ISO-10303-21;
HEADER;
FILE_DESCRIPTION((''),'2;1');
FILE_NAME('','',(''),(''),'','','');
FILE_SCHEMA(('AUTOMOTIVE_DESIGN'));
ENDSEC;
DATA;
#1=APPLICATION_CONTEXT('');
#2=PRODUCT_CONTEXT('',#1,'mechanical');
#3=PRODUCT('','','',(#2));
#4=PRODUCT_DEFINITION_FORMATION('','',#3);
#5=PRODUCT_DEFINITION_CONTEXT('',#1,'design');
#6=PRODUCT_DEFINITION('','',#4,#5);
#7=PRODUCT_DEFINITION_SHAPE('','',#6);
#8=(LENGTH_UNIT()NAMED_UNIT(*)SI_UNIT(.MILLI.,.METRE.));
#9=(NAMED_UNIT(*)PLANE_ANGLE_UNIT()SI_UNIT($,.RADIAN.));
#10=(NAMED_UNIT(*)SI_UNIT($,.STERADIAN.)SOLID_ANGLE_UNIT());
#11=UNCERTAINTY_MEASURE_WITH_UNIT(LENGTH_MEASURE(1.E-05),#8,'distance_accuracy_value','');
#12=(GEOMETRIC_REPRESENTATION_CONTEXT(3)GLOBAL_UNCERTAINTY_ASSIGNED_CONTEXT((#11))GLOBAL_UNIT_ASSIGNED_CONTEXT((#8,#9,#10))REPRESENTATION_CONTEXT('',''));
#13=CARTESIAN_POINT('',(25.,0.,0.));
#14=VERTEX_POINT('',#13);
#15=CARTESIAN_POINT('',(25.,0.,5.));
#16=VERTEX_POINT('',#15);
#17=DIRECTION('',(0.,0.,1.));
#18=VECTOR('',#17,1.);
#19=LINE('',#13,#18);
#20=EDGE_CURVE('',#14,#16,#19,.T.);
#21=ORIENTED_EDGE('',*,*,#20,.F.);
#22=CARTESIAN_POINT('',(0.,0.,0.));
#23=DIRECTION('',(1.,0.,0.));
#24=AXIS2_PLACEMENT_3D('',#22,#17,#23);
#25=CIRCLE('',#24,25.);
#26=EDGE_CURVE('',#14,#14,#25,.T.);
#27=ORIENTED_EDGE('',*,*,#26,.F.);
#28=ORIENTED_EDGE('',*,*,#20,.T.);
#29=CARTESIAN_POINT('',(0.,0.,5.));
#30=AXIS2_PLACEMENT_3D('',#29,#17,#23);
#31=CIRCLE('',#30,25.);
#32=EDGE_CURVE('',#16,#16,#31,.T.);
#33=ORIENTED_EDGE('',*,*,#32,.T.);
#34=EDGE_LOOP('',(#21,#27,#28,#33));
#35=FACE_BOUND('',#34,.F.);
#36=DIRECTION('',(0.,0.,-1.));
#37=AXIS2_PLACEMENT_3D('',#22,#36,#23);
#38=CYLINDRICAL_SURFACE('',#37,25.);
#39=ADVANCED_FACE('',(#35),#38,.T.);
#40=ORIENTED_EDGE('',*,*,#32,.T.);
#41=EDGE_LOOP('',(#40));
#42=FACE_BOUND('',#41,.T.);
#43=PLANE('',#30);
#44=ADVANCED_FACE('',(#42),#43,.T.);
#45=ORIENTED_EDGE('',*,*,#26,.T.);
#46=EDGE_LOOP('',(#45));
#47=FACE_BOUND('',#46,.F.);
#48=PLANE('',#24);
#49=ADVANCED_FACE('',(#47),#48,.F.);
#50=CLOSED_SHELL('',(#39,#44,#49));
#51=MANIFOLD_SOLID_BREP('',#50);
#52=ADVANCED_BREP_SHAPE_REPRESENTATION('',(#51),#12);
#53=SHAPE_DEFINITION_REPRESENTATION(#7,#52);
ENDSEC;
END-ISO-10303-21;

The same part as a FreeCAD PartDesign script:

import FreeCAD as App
import Part
import Sketcher

doc = App.newDocument("Part")
body = doc.addObject("PartDesign::Body", "Body")

# Sketch on XY plane
sketch1 = body.newObject("Sketcher::SketchObject", "Sketch")
sketch1.AttachmentSupport = (doc.getObject("XY_Plane"), [""])
sketch1.MapMode = "FlatFace"
sketch1.addGeometry(Part.Circle(App.Vector(0, 0, 0), App.Vector(0, 0, 1), 25), False)
sketch1.addConstraint([
    Sketcher.Constraint("Coincident", 0, 3, -1, 1),
    Sketcher.Constraint("Diameter", 0, 50.0),
])
pad1 = body.newObject("PartDesign::Pad", "Pad")
pad1.Profile = sketch1
pad1.Length = 5

doc.recompute()
